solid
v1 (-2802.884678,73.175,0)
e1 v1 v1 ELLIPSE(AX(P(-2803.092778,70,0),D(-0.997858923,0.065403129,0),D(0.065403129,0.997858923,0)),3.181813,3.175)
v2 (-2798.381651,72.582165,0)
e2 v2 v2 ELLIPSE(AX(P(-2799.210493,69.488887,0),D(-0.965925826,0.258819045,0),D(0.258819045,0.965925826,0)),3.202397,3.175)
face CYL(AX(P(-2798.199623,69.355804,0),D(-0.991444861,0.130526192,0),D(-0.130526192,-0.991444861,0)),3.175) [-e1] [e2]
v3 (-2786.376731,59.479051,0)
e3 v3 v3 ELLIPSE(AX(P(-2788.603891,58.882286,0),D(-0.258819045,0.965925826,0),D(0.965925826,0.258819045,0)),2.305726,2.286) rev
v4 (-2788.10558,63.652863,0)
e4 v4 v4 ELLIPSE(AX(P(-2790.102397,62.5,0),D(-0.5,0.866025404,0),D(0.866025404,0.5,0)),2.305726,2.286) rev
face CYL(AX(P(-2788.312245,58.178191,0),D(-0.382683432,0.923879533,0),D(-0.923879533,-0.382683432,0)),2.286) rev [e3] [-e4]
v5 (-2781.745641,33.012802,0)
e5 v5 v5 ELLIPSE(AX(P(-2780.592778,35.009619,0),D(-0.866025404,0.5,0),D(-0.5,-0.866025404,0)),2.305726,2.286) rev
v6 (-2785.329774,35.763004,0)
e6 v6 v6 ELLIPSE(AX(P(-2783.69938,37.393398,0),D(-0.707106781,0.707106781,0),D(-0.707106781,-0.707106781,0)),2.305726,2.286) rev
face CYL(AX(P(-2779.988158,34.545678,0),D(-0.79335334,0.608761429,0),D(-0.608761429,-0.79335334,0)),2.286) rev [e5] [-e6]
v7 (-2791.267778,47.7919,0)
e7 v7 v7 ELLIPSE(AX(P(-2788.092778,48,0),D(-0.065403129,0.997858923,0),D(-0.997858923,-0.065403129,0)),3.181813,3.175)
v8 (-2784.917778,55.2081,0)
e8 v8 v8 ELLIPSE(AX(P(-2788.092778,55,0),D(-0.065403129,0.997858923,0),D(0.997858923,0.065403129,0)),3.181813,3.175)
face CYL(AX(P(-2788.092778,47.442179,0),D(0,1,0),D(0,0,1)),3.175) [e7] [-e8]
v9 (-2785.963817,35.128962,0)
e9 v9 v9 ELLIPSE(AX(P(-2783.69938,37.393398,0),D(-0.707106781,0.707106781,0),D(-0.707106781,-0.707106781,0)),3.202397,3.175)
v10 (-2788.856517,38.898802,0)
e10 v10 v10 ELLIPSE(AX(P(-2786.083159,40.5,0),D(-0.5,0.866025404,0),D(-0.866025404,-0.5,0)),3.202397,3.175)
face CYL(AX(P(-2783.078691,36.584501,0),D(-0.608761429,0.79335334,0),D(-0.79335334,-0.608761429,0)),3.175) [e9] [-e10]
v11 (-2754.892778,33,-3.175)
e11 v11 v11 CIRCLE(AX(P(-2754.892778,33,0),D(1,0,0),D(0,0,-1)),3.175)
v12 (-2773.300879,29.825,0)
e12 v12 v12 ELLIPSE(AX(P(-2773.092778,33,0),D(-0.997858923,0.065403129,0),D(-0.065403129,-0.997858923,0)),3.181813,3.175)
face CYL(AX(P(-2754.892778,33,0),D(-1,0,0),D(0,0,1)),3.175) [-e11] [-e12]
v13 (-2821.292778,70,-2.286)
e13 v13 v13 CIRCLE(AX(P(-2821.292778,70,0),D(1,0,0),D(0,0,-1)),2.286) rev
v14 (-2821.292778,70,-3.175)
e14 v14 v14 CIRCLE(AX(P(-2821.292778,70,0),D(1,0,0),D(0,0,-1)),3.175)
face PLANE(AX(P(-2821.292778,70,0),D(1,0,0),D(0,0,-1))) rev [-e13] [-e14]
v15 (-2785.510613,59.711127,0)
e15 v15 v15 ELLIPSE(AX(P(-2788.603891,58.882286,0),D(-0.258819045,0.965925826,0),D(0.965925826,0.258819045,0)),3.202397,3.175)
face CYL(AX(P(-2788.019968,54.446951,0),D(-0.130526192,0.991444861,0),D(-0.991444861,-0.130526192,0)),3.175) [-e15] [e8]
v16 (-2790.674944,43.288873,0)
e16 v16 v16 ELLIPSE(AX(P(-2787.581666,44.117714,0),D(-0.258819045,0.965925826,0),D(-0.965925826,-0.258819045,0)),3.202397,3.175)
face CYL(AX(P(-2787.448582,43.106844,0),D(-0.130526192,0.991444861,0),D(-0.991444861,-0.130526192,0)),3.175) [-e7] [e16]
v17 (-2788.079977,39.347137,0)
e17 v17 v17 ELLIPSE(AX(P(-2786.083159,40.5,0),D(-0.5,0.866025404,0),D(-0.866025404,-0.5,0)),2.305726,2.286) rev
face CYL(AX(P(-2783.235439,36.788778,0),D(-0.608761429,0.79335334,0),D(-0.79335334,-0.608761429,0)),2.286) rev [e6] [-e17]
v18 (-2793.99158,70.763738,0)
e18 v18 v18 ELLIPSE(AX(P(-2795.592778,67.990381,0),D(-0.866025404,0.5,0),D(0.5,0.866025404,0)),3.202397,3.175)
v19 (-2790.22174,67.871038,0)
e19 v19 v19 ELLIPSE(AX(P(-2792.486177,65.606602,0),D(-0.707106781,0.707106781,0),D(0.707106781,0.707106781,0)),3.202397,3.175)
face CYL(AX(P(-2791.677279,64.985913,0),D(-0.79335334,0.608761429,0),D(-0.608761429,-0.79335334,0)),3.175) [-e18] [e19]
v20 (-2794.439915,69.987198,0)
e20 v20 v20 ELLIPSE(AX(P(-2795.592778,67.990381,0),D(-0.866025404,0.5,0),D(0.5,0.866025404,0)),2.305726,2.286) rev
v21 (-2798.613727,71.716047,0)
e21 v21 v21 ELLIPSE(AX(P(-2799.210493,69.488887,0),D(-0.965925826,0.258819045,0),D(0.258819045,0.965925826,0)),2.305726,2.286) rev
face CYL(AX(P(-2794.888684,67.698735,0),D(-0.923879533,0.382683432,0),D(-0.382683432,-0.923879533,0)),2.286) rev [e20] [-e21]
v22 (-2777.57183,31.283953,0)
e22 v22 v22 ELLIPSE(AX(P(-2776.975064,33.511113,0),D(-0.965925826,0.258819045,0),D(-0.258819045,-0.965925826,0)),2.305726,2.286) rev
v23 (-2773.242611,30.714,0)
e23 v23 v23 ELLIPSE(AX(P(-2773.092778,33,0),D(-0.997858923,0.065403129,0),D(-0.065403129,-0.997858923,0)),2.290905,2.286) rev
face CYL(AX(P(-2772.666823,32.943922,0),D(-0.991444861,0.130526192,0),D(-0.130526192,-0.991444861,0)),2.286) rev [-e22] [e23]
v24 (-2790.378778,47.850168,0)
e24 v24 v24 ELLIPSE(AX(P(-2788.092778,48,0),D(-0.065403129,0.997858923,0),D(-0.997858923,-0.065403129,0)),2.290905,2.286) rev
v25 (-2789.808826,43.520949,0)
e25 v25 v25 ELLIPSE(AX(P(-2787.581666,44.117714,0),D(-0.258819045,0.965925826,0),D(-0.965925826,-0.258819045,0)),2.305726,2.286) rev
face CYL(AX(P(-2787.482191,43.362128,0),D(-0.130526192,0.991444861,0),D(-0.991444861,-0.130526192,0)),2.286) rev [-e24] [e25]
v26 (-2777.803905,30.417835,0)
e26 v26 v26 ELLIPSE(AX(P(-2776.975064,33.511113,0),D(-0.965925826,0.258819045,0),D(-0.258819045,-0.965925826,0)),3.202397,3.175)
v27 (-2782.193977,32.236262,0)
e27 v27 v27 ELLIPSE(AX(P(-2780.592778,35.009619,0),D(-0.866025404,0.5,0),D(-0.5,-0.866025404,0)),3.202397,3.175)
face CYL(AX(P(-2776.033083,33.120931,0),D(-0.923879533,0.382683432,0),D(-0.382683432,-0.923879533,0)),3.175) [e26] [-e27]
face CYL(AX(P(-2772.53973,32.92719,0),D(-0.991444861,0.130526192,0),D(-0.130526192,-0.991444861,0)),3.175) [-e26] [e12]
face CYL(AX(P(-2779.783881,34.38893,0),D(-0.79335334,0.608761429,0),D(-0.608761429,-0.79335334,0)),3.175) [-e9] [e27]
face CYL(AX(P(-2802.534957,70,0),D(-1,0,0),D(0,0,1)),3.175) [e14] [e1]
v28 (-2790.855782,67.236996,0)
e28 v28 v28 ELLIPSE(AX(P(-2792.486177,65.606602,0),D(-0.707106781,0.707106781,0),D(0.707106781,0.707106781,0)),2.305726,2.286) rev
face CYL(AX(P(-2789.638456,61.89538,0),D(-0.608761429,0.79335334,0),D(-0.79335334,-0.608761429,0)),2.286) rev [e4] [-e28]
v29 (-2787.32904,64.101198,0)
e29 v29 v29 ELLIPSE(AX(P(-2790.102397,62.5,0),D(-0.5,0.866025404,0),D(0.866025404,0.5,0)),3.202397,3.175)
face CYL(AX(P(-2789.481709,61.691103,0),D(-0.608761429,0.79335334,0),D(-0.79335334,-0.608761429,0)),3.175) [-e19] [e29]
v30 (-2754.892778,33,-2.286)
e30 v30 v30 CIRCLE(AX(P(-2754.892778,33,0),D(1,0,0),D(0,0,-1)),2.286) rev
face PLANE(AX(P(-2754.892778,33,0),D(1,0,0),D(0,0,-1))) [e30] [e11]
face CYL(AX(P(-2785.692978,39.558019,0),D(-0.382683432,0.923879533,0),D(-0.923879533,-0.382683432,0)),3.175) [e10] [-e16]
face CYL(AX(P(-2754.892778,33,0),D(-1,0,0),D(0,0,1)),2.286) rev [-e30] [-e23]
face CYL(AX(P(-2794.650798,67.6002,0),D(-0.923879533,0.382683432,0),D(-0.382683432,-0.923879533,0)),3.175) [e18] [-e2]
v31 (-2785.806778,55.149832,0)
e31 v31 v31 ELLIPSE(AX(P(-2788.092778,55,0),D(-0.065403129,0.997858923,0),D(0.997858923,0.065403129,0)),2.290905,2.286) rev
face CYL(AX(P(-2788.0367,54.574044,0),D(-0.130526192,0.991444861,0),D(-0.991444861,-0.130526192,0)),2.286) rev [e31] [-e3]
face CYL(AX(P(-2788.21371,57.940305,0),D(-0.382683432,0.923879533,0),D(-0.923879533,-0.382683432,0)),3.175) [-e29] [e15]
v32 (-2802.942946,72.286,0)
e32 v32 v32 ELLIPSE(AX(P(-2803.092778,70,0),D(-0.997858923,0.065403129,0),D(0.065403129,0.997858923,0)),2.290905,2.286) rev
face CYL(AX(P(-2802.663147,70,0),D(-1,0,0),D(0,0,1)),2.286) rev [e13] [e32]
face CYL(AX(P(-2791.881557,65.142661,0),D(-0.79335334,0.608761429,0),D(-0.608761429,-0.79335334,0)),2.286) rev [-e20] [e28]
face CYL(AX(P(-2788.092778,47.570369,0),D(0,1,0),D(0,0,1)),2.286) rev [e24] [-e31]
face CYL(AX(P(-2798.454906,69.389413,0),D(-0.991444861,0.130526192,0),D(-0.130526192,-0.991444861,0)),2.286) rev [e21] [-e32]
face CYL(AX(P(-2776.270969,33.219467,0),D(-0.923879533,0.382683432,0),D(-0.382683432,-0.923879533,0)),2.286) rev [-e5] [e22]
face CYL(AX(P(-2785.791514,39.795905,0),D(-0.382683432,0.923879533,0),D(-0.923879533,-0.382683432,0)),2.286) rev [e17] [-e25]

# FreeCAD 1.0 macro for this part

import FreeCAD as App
import Part
import Sketcher
from FreeCAD import Vector
Q = App.Units.Quantity

doc = App.newDocument("Part")
body = doc.addObject("PartDesign::Body", "Body")

# Sketch on YZ plane
sketch1 = body.newObject("Sketcher::SketchObject", "Sketch")
sketch1.AttachmentSupport = (doc.getObject("YZ_Plane"), [""])
sketch1.MapMode = "FlatFace"
sketch1.AttachmentOffset = App.Placement(Vector(0, 0, -2754.892778), App.Rotation())
sketch1.addGeometry(Part.Circle(Vector(33, 0, 0), Vector(0, 0, 1), 3.2), False)
sketch1.addGeometry(Part.Circle(Vector(33, 0, 0), Vector(0, 0, 1), 2.3), False)
sketch1.addConstraint(Sketcher.Constraint("Coincident", 1, 3, 0, 3))
sketch1.addConstraint(Sketcher.Constraint("PointOnObject", 0, 3, -1))
sketch1.addConstraint(Sketcher.Constraint("Diameter", 0, 6.35))
sketch1.addConstraint(Sketcher.Constraint("Diameter", 1, 4.572))
sketch1.addConstraint(Sketcher.Constraint("DistanceX", -1, 1, 0, 3, 33.0))

# Sketch on XY plane
sketch2 = body.newObject("Sketcher::SketchObject", "Sketch001")
sketch2.AttachmentSupport = (doc.getObject("XY_Plane"), [""])
sketch2.MapMode = "FlatFace"
sketch2.addGeometry(Part.LineSegment(Vector(-2754.9, 33, 0), Vector(-2773.1, 33, 0)), False)
sketch2.addGeometry(Part.LineSegment(Vector(-2773.1, 33, 0), Vector(-2777, 33.5, 0)), False)
sketch2.addGeometry(Part.LineSegment(Vector(-2777, 33.5, 0), Vector(-2780.6, 35, 0)), False)
sketch2.addGeometry(Part.LineSegment(Vector(-2780.6, 35, 0), Vector(-2783.7, 37.4, 0)), False)
sketch2.addGeometry(Part.LineSegment(Vector(-2783.7, 37.4, 0), Vector(-2786.1, 40.5, 0)), False)
sketch2.addGeometry(Part.LineSegment(Vector(-2786.1, 40.5, 0), Vector(-2787.6, 44.1, 0)), False)
sketch2.addGeometry(Part.LineSegment(Vector(-2787.6, 44.1, 0), Vector(-2788.1, 48, 0)), False)
sketch2.addGeometry(Part.LineSegment(Vector(-2788.1, 48, 0), Vector(-2788.1, 55, 0)), False)
sketch2.addGeometry(Part.LineSegment(Vector(-2788.1, 55, 0), Vector(-2788.6, 58.9, 0)), False)
sketch2.addGeometry(Part.LineSegment(Vector(-2788.6, 58.9, 0), Vector(-2790.1, 62.5, 0)), False)
sketch2.addGeometry(Part.LineSegment(Vector(-2790.1, 62.5, 0), Vector(-2792.5, 65.6, 0)), False)
sketch2.addGeometry(Part.LineSegment(Vector(-2792.5, 65.6, 0), Vector(-2795.6, 68, 0)), False)
sketch2.addGeometry(Part.LineSegment(Vector(-2795.6, 68, 0), Vector(-2799.2, 69.5, 0)), False)
sketch2.addGeometry(Part.LineSegment(Vector(-2799.2, 69.5, 0), Vector(-2803.1, 70, 0)), False)
sketch2.addGeometry(Part.LineSegment(Vector(-2803.1, 70, 0), Vector(-2821.3, 70, 0)), False)
sketch2.addConstraint(Sketcher.Constraint("Coincident", 0, 2, 1, 1))
sketch2.addConstraint(Sketcher.Constraint("Coincident", 1, 2, 2, 1))
sketch2.addConstraint(Sketcher.Constraint("Coincident", 2, 2, 3, 1))
sketch2.addConstraint(Sketcher.Constraint("Coincident", 3, 2, 4, 1))
sketch2.addConstraint(Sketcher.Constraint("Coincident", 4, 2, 5, 1))
sketch2.addConstraint(Sketcher.Constraint("Coincident", 5, 2, 6, 1))
sketch2.addConstraint(Sketcher.Constraint("Coincident", 6, 2, 7, 1))
sketch2.addConstraint(Sketcher.Constraint("Coincident", 7, 2, 8, 1))
sketch2.addConstraint(Sketcher.Constraint("Coincident", 8, 2, 9, 1))
sketch2.addConstraint(Sketcher.Constraint("Coincident", 9, 2, 10, 1))
sketch2.addConstraint(Sketcher.Constraint("Coincident", 10, 2, 11, 1))
sketch2.addConstraint(Sketcher.Constraint("Coincident", 11, 2, 12, 1))
sketch2.addConstraint(Sketcher.Constraint("Coincident", 12, 2, 13, 1))
sketch2.addConstraint(Sketcher.Constraint("Coincident", 13, 2, 14, 1))
sketch2.addConstraint(Sketcher.Constraint("Horizontal", 0))
sketch2.addConstraint(Sketcher.Constraint("Vertical", 7))
sketch2.addConstraint(Sketcher.Constraint("Horizontal", 14))
sketch2.addConstraint(Sketcher.Constraint("Parallel", 6, 8))
sketch2.addConstraint(Sketcher.Constraint("Parallel", 5, 9))
sketch2.addConstraint(Sketcher.Constraint("Parallel", 4, 10))
sketch2.addConstraint(Sketcher.Constraint("Parallel", 3, 11))
sketch2.addConstraint(Sketcher.Constraint("Parallel", 2, 12))
sketch2.addConstraint(Sketcher.Constraint("Parallel", 1, 13))
sketch2.addConstraint(Sketcher.Constraint("Equal", 0, 14))
sketch2.addConstraint(Sketcher.Constraint("Equal", 1, 2))
sketch2.addConstraint(Sketcher.Constraint("Equal", 2, 3))
sketch2.addConstraint(Sketcher.Constraint("Equal", 3, 4))
sketch2.addConstraint(Sketcher.Constraint("Equal", 4, 5))
sketch2.addConstraint(Sketcher.Constraint("Equal", 5, 6))
sketch2.addConstraint(Sketcher.Constraint("Equal", 6, 8))
sketch2.addConstraint(Sketcher.Constraint("Equal", 8, 9))
sketch2.addConstraint(Sketcher.Constraint("Equal", 9, 10))
sketch2.addConstraint(Sketcher.Constraint("Equal", 10, 11))
sketch2.addConstraint(Sketcher.Constraint("Equal", 11, 12))
sketch2.addConstraint(Sketcher.Constraint("Equal", 12, 13))
sketch2.addConstraint(Sketcher.Constraint("DistanceY", 7, 1, 7, 2, 7.0))
sketch2.addConstraint(Sketcher.Constraint("DistanceX", 0, 2, 0, 1, 18.2))
sketch2.addConstraint(Sketcher.Constraint("DistanceY", -1, 1, 0, 1, 33.0))
sketch2.addConstraint(Sketcher.Constraint("DistanceY", -1, 1, 6, 2, 48.0))
sketch2.addConstraint(Sketcher.Constraint("Angle", 1, Q("172.5 deg")))
sketch2.addConstraint(Sketcher.Constraint("Angle", 2, Q("157.5 deg")))
sketch2.addConstraint(Sketcher.Constraint("Angle", 3, Q("142.5 deg")))
sketch2.addConstraint(Sketcher.Constraint("Angle", 4, Q("127.5 deg")))
sketch2.addConstraint(Sketcher.Constraint("Angle", 5, Q("112.5 deg")))
sketch2.addConstraint(Sketcher.Constraint("Angle", 6, Q("97.5 deg")))
sketch2.addConstraint(Sketcher.Constraint("DistanceX", 0, 1, -1, 1, 2754.892778))
doc.recompute()

additivepipe = body.newObject("PartDesign::AdditivePipe", "AdditivePipe")
additivepipe.Profile = sketch1
additivepipe.Spine = (sketch2, ["Edge1", "Edge2", "Edge3", "Edge4", "Edge5", "Edge6", "Edge7", "Edge8", "Edge9", "Edge10", "Edge11", "Edge12", "Edge13", "Edge14", "Edge15"])
additivepipe.Transition = "Right corner"

doc.recompute()
